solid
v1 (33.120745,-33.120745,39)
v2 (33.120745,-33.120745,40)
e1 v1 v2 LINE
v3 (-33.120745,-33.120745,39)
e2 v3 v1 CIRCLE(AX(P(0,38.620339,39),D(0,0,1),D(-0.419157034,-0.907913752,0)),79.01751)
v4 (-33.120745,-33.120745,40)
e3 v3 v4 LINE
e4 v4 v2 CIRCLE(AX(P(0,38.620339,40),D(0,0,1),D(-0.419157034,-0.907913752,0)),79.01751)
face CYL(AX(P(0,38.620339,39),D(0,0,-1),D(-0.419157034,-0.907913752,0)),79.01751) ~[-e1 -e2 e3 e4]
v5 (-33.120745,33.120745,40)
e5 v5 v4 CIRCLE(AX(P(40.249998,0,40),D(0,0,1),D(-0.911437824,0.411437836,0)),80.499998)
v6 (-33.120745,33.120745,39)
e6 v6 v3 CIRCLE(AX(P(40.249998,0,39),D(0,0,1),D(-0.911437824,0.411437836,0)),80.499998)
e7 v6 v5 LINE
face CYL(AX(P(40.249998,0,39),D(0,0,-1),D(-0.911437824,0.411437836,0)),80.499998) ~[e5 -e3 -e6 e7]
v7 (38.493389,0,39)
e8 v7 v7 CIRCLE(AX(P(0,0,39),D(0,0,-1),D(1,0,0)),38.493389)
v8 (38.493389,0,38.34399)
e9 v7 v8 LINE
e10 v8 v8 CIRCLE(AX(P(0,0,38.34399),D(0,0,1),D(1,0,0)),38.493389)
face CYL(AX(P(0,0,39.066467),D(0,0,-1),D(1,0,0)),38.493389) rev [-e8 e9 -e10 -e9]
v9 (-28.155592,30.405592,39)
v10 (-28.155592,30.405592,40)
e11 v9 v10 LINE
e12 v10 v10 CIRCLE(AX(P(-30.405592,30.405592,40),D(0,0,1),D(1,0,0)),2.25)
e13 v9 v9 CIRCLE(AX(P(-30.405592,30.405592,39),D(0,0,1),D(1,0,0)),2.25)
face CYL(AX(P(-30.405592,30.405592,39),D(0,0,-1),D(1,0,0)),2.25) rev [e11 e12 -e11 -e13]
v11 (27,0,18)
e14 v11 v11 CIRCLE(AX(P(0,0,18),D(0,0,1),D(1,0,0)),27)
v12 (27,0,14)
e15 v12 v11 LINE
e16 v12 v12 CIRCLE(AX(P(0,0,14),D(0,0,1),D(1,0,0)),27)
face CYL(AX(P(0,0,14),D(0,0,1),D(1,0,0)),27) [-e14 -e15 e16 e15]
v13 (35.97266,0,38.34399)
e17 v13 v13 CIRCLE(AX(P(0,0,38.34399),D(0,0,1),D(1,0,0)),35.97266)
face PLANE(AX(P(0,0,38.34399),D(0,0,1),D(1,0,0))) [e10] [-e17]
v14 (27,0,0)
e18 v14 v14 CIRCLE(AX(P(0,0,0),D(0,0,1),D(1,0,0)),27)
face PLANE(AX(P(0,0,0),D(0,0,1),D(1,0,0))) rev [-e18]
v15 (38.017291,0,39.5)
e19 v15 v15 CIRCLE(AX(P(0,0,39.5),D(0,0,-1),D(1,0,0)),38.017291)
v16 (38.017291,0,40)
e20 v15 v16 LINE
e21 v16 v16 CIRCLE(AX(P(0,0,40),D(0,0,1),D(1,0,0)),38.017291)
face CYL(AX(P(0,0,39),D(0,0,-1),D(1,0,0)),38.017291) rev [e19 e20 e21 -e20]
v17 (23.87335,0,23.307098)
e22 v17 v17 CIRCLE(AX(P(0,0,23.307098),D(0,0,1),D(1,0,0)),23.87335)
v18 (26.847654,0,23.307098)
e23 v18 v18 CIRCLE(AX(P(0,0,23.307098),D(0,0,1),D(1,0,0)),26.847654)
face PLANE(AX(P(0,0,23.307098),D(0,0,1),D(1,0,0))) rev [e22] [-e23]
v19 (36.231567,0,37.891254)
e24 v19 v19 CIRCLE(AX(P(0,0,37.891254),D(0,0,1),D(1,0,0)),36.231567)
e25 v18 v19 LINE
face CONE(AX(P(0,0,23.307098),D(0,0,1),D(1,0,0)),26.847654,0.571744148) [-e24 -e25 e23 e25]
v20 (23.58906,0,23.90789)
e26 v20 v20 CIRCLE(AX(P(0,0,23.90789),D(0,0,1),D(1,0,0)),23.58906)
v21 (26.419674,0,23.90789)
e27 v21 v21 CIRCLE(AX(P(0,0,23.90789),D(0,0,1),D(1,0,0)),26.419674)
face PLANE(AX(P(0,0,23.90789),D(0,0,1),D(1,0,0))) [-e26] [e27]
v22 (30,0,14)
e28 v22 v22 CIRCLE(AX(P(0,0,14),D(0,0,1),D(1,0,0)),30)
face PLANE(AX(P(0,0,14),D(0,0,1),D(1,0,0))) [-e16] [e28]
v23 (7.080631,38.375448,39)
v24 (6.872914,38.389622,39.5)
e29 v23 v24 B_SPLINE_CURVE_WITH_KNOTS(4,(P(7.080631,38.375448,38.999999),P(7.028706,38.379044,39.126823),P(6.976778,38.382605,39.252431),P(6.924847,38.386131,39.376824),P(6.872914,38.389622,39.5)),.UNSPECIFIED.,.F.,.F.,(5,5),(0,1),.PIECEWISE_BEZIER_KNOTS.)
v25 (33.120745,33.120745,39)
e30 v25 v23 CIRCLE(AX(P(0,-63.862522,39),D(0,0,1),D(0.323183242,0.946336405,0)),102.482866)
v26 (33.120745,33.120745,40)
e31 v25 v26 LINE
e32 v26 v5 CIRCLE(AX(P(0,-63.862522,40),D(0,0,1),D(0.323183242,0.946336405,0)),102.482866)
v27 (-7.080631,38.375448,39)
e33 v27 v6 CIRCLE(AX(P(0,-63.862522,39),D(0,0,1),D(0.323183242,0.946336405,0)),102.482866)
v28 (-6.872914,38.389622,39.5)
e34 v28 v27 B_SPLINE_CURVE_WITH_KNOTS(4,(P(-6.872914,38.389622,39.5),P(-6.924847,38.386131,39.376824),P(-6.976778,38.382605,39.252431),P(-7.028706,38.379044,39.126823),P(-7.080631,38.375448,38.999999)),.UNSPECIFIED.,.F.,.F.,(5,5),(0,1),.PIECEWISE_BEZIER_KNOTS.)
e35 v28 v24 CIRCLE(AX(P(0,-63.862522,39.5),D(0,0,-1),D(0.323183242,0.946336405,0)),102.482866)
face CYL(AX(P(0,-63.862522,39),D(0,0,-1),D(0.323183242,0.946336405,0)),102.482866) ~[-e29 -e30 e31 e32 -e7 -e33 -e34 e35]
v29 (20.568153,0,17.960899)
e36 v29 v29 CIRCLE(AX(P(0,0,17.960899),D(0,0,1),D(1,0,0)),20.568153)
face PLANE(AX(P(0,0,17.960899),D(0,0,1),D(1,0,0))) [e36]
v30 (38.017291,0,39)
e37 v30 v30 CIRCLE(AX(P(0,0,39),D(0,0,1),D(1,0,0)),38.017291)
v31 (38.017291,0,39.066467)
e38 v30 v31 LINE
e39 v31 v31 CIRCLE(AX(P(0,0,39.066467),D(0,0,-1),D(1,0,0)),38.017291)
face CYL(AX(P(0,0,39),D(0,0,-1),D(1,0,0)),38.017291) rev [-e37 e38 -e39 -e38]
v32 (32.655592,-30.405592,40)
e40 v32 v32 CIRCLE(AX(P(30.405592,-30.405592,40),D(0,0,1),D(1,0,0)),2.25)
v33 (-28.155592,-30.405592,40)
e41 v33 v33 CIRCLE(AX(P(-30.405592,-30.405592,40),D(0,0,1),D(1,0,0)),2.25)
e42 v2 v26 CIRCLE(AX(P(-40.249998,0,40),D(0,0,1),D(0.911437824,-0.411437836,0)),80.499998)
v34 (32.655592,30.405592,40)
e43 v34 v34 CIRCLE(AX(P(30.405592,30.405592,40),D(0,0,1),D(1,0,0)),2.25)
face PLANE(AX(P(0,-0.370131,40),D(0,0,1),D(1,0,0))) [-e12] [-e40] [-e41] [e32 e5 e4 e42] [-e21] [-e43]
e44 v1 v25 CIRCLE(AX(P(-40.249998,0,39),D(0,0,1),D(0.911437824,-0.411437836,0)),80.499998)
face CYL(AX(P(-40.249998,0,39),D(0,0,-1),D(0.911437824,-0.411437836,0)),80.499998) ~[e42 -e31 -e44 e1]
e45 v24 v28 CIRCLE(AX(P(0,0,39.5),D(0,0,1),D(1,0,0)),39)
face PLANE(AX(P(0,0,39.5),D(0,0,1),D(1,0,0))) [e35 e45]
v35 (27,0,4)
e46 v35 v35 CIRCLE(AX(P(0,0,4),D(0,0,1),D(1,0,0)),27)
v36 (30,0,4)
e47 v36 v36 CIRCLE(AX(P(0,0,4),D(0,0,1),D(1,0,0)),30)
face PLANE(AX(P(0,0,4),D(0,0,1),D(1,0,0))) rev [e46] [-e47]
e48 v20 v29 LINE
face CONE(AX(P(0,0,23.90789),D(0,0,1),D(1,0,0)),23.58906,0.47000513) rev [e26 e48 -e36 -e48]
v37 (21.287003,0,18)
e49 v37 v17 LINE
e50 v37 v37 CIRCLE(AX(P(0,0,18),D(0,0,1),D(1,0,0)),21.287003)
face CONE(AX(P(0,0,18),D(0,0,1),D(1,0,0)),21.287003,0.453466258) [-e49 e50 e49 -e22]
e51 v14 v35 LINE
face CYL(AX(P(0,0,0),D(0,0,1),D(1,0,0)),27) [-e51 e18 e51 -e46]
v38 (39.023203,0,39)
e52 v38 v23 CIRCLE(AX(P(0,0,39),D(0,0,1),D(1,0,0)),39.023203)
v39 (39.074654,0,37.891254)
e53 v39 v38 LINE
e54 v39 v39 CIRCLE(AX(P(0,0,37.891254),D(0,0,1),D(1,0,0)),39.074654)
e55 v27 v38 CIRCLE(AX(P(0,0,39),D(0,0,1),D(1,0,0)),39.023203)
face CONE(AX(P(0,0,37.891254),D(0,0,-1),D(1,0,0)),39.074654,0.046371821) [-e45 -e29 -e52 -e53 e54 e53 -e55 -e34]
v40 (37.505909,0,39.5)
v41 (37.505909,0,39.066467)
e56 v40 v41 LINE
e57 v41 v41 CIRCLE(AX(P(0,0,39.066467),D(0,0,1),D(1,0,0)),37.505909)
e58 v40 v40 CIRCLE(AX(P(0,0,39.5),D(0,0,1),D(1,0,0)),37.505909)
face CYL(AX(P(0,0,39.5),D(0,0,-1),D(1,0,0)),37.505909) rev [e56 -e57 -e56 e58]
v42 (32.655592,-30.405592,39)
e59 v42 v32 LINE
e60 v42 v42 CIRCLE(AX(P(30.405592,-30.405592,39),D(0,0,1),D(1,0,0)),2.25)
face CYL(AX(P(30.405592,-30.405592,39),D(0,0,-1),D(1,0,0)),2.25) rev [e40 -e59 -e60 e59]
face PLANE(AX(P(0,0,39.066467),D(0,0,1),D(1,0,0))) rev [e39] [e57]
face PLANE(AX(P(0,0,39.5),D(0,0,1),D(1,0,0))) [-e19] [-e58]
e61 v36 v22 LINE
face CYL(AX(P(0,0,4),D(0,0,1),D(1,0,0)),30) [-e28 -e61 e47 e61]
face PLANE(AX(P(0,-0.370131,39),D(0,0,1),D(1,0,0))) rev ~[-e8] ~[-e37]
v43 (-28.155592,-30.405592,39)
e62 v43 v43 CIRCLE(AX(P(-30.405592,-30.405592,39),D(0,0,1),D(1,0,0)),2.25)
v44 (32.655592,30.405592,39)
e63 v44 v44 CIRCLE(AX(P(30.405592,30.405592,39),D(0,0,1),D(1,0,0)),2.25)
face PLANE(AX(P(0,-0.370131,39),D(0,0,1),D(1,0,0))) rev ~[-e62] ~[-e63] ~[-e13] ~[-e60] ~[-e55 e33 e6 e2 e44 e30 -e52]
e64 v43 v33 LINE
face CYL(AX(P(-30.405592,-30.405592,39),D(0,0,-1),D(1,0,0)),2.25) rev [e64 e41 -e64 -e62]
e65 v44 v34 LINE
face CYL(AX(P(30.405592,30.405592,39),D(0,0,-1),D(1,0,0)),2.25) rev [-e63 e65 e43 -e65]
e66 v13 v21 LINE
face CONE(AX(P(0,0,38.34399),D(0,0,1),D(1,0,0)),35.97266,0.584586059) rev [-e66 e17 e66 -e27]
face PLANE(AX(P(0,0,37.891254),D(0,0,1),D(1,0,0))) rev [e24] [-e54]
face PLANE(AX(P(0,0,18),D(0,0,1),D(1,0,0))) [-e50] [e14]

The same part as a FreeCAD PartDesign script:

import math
import FreeCAD as App
import Part
import Sketcher

V = App.Vector


def add_polygon(sketch, points):
    """Adds a closed chain of lines whose ends are joined by coincident constraints."""
    first, n = sketch.GeometryCount, len(points)
    for a, b in zip(points, points[1:] + points[:1]):
        sketch.addGeometry(Part.LineSegment(App.Vector(*a, 0), App.Vector(*b, 0)), False)
    for i in range(n):
        sketch.addConstraint(Sketcher.Constraint("Coincident", first + i, 2, first + (i + 1) % n, 1))

doc = App.newDocument("Part")
params = doc.addObject("Spreadsheet::Sheet", "Params")
for row, (alias, value) in enumerate([
    ("sketch1_width", "27 mm"),
    ("sketch1_width2", "3 mm"),
    ("sketch1_height", "4 mm"),
    ("sketch1_height2", "10 mm"),
    ("revolution_angle", "360 deg"),
    ("sketch2_diameter", "4.5 mm"),
    ("pad1_length", "1 mm"),
], start=1):
    params.set(f"A{row}", alias)
    params.set(f"B{row}", "=" + value)
    params.setAlias(f"B{row}", alias)

body = doc.addObject("PartDesign::Body", "Body")

# Sketch on XZ plane
sketch1 = body.newObject("Sketcher::SketchObject", "Sketch")
sketch1.AttachmentSupport = (doc.getObject("XZ_Plane"), [""])
sketch1.MapMode = "FlatFace"
add_polygon(sketch1, [(0, 0), (27, 0), (27, 4), (30, 4), (30, 14), (27, 14), (27, 18), (21.29, 18), (23.87, 23.31), (26.85, 23.31), (36.23, 37.89), (39.07, 37.89), (39, 39.5), (37.51, 39.5), (37.51, 39.07), (38.49, 39.07), (38.49, 38.34), (35.97, 38.34), (26.42, 23.91), (23.59, 23.91), (20.57, 17.96), (0, 17.96)])  # lines 0-21
sketch1.addConstraint([
    Sketcher.Constraint("Horizontal", 0),
    Sketcher.Constraint("Vertical", 1),
    Sketcher.Constraint("Horizontal", 2),
    Sketcher.Constraint("Vertical", 3),
    Sketcher.Constraint("Horizontal", 4),
    Sketcher.Constraint("Vertical", 5),
    Sketcher.Constraint("Horizontal", 6),
    Sketcher.Constraint("Horizontal", 8),
    Sketcher.Constraint("Horizontal", 10),
    Sketcher.Constraint("Horizontal", 12),
    Sketcher.Constraint("Vertical", 13),
    Sketcher.Constraint("Horizontal", 14),
    Sketcher.Constraint("Vertical", 15),
    Sketcher.Constraint("Horizontal", 16),
    Sketcher.Constraint("Horizontal", 18),
    Sketcher.Constraint("Horizontal", 20),
    Sketcher.Constraint("Vertical", 21),
    Sketcher.Constraint("Coincident", 21, 2, -1, 1),
    Sketcher.Constraint("Vertical", 1, 2, 4, 2),
    Sketcher.Constraint("Equal", 1, 5),
    Sketcher.Constraint("DistanceX", 0, 1, 0, 2, 27.0),
    Sketcher.Constraint("DistanceX", 2, 1, 2, 2, 3.0),
    Sketcher.Constraint("DistanceY", 1, 1, 1, 2, 4.0),
    Sketcher.Constraint("DistanceY", 3, 1, 3, 2, 10.0),
    Sketcher.Constraint("DistanceX", -1, 1, 11, 2, 39.0),
    Sketcher.Constraint("DistanceY", -1, 1, 11, 2, 39.5),
    Sketcher.Constraint("DistanceY", 21, 2, 21, 1, 17.960899),
    Sketcher.Constraint("DistanceX", 8, 2, 10, 2, 12.227),
    Sketcher.Constraint("Distance", 9, 17.342302),
    Sketcher.Constraint("DistanceX", 12, 2, 12, 1, 1.494091),
    Sketcher.Constraint("DistanceX", 14, 1, 14, 2, 0.98748),
    Sketcher.Constraint("DistanceX", 16, 2, 16, 1, 2.520729),
    Sketcher.Constraint("DistanceY", -1, 1, 7, 2, 23.307098),
    Sketcher.Constraint("Distance", 7, 5.903768),
    Sketcher.Constraint("DistanceX", 6, 2, 6, 1, 5.712997),
    Sketcher.Constraint("DistanceX", 8, 1, 8, 2, 2.974304),
    Sketcher.Constraint("DistanceX", 10, 1, 10, 2, 2.843087),
    Sketcher.Constraint("DistanceX", 18, 2, 18, 1, 2.830614),
    Sketcher.Constraint("DistanceX", 20, 2, 20, 1, 20.568153),
    Sketcher.Constraint("DistanceY", 13, 2, 13, 1, 0.433533),
    Sketcher.Constraint("DistanceY", 15, 2, 15, 1, 0.722477),
    Sketcher.Constraint("DistanceY", -1, 1, 17, 2, 23.90789),
    Sketcher.Constraint("DistanceX", -1, 1, 18, 2, 23.58906),
])
sketch1.setExpression("Constraints[42]", "Params.sketch1_width")
sketch1.setExpression("Constraints[43]", "Params.sketch1_width2")
sketch1.setExpression("Constraints[44]", "Params.sketch1_height")
sketch1.setExpression("Constraints[45]", "Params.sketch1_height2")
revolution = body.newObject("PartDesign::Revolution", "Revolution")
revolution.Profile = sketch1
revolution.ReferenceAxis = (sketch1, ["V_Axis"])
revolution.setExpression("Angle", "Params.revolution_angle")

# Sketch on XY plane
sketch2 = body.newObject("Sketcher::SketchObject", "Sketch001")
sketch2.AttachmentSupport = (doc.getObject("XY_Plane"), [""])
sketch2.MapMode = "FlatFace"
sketch2.AttachmentOffset = App.Placement(V(0, 0, 39), App.Rotation())
sketch2.addGeometry([
    Part.ArcOfCircle(Part.Circle(V(-40.2, 0, 0), V(0, 0, 1), 80.5), math.radians(-24), math.radians(24)),  # 0
    Part.ArcOfCircle(Part.Circle(V(0, -63.9, 0), V(0, 0, 1), 102.5), math.radians(71), math.radians(109)),  # 1
    Part.ArcOfCircle(Part.Circle(V(40.2, 0, 0), V(0, 0, 1), 80.5), math.radians(156), math.radians(204)),  # 2
    Part.ArcOfCircle(Part.Circle(V(0, 38.6, 0), V(0, 0, 1), 79), math.radians(-115), math.radians(-65)),  # 3
    Part.Circle(V(-30.4, -30.4, 0), V(0, 0, 1), 2.2),  # 4
    Part.Circle(V(30.4, -30.4, 0), V(0, 0, 1), 2.2),  # 5
    Part.Circle(V(-30.4, 30.4, 0), V(0, 0, 1), 2.2),  # 6
    Part.Circle(V(0, 0, 0), V(0, 0, 1), 38),  # 7
    Part.Circle(V(30.4, 30.4, 0), V(0, 0, 1), 2.2),  # 8
], False)
sketch2.addConstraint([
    Sketcher.Constraint("Coincident", 0, 2, 1, 1),
    Sketcher.Constraint("Coincident", 1, 2, 2, 1),
    Sketcher.Constraint("Coincident", 2, 2, 3, 1),
    Sketcher.Constraint("Coincident", 3, 2, 0, 1),
    Sketcher.Constraint("Coincident", 7, 3, -1, 1),
    Sketcher.Constraint("Equal", 0, 2),
    Sketcher.Constraint("Equal", 4, 5),
    Sketcher.Constraint("Equal", 5, 6),
    Sketcher.Constraint("Equal", 6, 8),
    Sketcher.Constraint("Symmetric", 0, 3, 2, 3, -1, 1),
    Sketcher.Constraint("Symmetric", 5, 3, 6, 3, -1, 1),
    Sketcher.Constraint("Symmetric", 4, 3, 8, 3, -1, 1),
    Sketcher.Constraint("Symmetric", 4, 3, 5, 3, -2),
    Sketcher.Constraint("Symmetric", 0, 2, 1, 2, -2),
    Sketcher.Constraint("PointOnObject", 3, 3, -2),
    Sketcher.Constraint("Vertical", 1, 2, 2, 2),
    Sketcher.Constraint("Diameter", 4, 4.5),
    Sketcher.Constraint("Diameter", 7, 76.034582),
    Sketcher.Constraint("Radius", 3, 79.01751),
    Sketcher.Constraint("Radius", 0, 80.499998),
    Sketcher.Constraint("Radius", 1, 102.482866),
    Sketcher.Constraint("DistanceY", -1, 1, 3, 3, 38.620339),
    Sketcher.Constraint("DistanceX", 4, 3, -1, 1, 30.405592),
    Sketcher.Constraint("DistanceY", 4, 3, -1, 1, 30.405592),
    Sketcher.Constraint("DistanceY", 1, 3, 3, 3, 102.482861),
])
sketch2.setExpression("Constraints[16]", "Params.sketch2_diameter")
pad1 = body.newObject("PartDesign::Pad", "Pad")
pad1.Profile = sketch2
pad1.setExpression("Length", "Params.pad1_length")

doc.recompute()
